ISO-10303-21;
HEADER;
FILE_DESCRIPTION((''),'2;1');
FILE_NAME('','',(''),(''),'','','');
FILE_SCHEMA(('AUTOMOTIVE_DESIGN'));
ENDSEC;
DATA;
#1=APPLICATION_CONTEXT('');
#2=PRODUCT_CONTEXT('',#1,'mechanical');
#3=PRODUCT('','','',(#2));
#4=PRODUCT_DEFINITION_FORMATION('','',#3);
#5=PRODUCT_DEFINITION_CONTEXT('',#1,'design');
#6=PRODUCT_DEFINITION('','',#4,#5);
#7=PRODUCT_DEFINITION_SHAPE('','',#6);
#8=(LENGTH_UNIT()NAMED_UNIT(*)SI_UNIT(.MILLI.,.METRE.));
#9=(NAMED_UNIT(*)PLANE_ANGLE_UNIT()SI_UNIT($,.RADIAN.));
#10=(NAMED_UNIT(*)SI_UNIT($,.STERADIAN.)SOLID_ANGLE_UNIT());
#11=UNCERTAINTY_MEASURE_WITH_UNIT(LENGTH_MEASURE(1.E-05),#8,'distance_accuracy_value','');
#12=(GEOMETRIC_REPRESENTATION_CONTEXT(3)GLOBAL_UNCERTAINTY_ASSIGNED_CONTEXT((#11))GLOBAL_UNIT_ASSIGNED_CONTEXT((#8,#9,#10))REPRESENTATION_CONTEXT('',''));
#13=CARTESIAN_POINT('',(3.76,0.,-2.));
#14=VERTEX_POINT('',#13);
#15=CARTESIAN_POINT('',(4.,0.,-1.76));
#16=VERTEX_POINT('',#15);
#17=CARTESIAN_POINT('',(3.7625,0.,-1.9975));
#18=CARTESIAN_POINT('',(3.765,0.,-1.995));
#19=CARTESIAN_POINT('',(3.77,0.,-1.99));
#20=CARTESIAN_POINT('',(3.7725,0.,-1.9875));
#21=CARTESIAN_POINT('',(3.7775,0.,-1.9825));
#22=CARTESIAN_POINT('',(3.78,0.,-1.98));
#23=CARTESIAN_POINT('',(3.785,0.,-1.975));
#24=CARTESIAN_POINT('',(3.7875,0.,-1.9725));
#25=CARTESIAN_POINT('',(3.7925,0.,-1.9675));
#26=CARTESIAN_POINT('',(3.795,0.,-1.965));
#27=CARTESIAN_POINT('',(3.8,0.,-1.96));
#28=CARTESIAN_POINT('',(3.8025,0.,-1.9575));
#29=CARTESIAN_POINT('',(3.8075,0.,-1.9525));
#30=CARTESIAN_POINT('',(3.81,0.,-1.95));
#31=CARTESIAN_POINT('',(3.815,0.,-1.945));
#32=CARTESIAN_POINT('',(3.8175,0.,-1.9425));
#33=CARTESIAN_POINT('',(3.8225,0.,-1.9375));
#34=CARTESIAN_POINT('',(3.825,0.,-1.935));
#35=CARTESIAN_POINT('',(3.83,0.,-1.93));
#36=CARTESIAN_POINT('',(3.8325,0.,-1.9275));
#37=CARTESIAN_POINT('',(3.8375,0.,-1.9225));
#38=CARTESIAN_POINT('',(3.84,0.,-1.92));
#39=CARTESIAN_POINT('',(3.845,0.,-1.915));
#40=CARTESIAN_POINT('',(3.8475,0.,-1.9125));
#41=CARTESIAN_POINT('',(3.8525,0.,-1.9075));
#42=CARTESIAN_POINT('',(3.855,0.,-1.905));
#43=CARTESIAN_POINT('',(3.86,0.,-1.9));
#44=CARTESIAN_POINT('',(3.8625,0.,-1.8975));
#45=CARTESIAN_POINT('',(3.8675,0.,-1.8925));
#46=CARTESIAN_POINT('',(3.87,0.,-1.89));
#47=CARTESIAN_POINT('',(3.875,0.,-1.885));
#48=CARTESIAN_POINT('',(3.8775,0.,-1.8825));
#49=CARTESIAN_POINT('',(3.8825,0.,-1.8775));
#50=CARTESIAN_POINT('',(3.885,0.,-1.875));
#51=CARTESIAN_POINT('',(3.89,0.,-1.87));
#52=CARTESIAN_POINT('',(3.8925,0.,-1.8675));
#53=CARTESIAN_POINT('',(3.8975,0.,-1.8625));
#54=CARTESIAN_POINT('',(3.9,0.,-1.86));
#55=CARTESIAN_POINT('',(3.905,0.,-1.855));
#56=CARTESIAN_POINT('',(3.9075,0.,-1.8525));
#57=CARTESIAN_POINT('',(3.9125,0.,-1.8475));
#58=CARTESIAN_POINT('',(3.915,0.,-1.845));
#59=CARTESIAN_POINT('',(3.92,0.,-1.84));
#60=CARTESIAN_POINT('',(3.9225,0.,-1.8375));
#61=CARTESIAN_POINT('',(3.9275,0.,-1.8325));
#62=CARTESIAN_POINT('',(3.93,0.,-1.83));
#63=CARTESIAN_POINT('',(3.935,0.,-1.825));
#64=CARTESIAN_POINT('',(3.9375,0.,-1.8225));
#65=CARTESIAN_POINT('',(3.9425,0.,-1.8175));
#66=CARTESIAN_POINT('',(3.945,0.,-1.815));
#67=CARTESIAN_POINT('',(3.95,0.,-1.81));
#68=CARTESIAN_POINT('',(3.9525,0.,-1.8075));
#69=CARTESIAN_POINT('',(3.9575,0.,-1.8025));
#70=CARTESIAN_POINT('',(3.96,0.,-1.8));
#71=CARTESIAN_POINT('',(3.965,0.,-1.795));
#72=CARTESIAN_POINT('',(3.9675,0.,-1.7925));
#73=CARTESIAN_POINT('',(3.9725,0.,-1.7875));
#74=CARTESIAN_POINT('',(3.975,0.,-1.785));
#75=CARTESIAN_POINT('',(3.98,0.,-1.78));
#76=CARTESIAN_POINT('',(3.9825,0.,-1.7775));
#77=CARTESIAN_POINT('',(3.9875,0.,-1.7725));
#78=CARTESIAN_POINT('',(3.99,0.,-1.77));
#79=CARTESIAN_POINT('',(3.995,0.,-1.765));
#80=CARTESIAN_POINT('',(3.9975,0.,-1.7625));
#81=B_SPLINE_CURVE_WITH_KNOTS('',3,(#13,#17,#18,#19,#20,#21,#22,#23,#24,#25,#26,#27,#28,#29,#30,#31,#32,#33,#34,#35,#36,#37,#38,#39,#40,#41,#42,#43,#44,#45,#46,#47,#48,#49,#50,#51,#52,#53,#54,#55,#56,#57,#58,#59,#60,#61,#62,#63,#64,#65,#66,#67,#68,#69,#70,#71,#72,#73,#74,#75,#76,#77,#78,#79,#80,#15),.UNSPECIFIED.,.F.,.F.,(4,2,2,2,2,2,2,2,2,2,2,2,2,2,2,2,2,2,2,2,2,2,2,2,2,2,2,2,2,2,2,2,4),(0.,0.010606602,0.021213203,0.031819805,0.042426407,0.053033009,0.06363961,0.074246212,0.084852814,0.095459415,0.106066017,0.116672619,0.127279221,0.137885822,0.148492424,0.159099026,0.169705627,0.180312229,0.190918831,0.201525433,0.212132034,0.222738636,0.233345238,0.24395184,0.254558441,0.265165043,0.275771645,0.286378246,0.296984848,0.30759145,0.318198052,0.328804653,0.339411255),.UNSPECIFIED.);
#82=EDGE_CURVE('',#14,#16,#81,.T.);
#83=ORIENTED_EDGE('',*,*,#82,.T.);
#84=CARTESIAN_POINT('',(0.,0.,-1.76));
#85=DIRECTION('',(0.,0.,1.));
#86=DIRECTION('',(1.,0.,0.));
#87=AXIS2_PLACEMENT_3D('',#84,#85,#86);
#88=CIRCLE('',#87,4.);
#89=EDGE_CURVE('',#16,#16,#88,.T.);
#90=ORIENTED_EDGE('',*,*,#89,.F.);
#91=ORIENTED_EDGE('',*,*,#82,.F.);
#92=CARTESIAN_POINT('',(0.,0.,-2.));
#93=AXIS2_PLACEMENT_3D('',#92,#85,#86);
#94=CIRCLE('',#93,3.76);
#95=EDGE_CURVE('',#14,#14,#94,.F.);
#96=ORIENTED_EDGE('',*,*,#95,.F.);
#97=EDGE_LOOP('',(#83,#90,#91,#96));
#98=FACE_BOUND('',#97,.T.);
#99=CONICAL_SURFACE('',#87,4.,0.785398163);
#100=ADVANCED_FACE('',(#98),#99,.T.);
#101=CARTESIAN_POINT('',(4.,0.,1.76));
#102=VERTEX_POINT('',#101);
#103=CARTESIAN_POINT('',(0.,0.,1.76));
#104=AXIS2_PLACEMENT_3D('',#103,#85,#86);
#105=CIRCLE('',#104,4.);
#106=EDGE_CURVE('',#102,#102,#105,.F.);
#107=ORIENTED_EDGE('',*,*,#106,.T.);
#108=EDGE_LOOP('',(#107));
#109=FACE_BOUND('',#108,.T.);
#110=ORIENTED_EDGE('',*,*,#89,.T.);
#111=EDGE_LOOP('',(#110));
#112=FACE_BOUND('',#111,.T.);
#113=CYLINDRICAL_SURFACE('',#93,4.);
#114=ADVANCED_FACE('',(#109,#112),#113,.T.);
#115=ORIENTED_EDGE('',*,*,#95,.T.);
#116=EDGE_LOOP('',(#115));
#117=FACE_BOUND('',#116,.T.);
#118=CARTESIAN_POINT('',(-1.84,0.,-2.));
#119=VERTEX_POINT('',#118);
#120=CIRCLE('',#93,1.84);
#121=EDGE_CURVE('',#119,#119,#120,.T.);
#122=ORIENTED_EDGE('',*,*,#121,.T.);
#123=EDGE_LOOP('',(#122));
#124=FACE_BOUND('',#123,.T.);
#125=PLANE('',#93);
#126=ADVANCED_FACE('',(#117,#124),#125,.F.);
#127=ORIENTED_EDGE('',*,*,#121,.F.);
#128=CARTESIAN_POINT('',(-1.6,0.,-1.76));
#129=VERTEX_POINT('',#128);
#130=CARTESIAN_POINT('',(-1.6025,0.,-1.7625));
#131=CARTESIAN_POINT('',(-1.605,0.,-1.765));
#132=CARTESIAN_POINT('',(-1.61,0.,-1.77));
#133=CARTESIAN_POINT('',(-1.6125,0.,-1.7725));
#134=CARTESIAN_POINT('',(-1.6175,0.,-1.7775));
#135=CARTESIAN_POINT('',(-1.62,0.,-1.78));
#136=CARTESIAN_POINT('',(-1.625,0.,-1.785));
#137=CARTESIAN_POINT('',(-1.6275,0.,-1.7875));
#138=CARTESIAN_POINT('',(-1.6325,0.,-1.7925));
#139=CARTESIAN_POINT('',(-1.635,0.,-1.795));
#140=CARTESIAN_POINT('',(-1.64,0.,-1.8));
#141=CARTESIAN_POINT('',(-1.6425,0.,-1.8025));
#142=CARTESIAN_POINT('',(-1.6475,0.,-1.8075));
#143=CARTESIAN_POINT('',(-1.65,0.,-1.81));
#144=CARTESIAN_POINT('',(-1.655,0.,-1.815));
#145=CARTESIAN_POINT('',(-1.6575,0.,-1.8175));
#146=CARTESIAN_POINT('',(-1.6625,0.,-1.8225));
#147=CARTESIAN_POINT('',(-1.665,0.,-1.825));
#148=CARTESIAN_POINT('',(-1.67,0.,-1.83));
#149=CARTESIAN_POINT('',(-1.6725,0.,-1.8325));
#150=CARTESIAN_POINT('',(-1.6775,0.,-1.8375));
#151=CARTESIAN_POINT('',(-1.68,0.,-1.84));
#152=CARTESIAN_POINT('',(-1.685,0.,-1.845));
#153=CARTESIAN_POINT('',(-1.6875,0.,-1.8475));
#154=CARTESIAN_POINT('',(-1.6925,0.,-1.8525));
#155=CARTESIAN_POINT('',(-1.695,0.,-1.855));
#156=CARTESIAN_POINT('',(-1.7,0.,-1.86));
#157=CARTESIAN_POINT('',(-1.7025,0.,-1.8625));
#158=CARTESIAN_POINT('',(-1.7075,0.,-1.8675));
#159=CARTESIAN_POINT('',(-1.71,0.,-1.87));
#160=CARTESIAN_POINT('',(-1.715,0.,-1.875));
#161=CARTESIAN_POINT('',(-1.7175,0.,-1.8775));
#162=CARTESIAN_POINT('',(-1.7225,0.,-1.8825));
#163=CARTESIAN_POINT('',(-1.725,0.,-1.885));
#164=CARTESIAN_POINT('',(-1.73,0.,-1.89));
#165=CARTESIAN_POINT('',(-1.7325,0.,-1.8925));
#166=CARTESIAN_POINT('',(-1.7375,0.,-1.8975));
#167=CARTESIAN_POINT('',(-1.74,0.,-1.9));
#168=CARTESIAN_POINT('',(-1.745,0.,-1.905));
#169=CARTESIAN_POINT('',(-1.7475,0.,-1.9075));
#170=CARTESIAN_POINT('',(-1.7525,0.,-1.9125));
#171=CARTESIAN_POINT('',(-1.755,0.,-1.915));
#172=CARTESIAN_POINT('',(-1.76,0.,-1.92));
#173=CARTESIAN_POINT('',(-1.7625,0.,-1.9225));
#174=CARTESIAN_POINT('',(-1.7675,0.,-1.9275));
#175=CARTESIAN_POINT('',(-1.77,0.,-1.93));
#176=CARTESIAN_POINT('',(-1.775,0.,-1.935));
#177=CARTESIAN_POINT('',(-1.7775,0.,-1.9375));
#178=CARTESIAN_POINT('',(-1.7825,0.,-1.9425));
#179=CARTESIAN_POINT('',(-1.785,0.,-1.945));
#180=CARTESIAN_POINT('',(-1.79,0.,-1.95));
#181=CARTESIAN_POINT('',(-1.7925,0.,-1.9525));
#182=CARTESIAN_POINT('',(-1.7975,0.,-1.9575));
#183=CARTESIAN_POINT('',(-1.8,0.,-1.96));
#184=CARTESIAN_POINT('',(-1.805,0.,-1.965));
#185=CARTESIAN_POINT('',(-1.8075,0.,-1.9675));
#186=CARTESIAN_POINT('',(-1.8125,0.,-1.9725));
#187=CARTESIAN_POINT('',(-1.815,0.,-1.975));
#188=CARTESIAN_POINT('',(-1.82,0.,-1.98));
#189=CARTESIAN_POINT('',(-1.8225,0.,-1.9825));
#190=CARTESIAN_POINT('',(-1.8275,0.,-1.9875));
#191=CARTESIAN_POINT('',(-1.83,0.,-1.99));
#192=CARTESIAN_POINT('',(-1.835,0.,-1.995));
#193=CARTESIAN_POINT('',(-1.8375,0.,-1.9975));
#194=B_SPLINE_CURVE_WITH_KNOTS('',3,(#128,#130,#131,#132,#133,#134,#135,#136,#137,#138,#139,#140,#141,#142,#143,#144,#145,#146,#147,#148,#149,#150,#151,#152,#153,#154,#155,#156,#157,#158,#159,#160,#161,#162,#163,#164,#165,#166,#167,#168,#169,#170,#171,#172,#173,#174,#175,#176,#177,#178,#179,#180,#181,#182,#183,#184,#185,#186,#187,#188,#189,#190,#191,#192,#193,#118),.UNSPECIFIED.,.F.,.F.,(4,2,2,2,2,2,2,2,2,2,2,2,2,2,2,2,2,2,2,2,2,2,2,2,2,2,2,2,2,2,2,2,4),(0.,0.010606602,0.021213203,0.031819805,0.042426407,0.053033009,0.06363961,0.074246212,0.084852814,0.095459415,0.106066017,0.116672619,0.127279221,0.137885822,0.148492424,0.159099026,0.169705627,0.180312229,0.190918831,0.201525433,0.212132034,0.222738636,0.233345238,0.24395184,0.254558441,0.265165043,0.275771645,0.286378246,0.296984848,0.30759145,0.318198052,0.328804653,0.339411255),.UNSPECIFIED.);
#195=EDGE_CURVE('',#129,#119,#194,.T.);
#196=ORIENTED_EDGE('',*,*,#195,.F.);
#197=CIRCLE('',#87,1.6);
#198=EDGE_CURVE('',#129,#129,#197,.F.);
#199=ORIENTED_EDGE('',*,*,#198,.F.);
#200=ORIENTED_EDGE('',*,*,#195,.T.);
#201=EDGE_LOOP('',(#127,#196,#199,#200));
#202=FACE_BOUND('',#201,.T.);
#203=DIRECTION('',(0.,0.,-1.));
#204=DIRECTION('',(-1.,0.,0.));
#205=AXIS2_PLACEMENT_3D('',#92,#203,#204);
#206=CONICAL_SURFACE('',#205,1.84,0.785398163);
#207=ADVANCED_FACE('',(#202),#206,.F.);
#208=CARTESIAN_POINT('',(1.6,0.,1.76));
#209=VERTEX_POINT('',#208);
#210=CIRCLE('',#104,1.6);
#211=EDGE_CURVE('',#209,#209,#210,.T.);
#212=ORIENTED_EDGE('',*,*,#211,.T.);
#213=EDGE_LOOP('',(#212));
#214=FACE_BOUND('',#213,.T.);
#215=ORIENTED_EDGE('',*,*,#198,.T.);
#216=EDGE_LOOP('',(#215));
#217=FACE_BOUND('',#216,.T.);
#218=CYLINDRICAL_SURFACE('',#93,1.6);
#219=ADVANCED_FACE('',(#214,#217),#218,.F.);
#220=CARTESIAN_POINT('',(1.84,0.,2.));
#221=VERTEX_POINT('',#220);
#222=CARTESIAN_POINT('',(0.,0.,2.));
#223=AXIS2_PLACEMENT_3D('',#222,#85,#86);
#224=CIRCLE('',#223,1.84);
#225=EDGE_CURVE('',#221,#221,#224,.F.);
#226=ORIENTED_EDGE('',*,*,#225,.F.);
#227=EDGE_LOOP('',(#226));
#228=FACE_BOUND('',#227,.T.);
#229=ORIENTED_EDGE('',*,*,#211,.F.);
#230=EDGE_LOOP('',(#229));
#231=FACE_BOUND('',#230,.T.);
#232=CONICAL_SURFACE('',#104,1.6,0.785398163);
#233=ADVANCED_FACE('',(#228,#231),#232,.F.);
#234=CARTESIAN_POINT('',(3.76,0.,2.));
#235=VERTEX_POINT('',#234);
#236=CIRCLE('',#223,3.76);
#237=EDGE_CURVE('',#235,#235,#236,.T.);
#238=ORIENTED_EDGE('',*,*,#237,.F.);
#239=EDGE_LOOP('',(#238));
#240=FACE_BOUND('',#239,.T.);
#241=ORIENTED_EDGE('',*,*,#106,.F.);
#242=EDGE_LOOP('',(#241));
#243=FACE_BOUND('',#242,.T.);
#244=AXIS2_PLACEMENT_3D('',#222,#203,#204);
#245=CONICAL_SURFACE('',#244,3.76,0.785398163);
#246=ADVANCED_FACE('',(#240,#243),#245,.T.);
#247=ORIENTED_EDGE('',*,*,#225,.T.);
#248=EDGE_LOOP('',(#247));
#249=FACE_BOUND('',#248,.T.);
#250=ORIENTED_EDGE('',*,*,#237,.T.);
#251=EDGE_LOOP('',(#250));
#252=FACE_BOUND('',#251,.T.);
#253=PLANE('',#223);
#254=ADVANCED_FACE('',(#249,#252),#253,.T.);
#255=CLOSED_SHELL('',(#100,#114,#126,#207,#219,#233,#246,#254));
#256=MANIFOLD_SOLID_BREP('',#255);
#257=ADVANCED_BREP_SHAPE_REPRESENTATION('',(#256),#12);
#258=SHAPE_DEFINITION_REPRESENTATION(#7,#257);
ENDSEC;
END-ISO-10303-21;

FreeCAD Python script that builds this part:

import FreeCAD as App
import Part
import Sketcher


def edges_at(feature, points):
    """Names of the edges that pass closest to the given points."""
    edges = feature.Shape.Edges
    near = lambda p: min(range(len(edges)), key=lambda i: edges[i].distToShape(Part.Vertex(*p))[0])
    return sorted({f"Edge{near(p) + 1}" for p in points})

doc = App.newDocument("Part")
body = doc.addObject("PartDesign::Body", "Body")

# Sketch on XY plane
sketch1 = body.newObject("Sketcher::SketchObject", "Sketch")
sketch1.AttachmentSupport = (doc.getObject("XY_Plane"), [""])
sketch1.MapMode = "FlatFace"
sketch1.addGeometry(Part.Circle(App.Vector(0, 0, 0), App.Vector(0, 0, 1), 4), False)
sketch1.addGeometry(Part.Circle(App.Vector(0, 0, 0), App.Vector(0, 0, 1), 1.6), False)
sketch1.addConstraint(Sketcher.Constraint("Coincident", 0, 3, -1, 1))
sketch1.addConstraint(Sketcher.Constraint("Coincident", 1, 3, -1, 1))
sketch1.addConstraint(Sketcher.Constraint("Diameter", 0, 8.0))
sketch1.addConstraint(Sketcher.Constraint("Diameter", 1, 3.2))
pad1 = body.newObject("PartDesign::Pad", "Pad")
pad1.Profile = sketch1
pad1.Type = "TwoLengths"
pad1.Length = 2
pad1.Length2 = 2
doc.recompute()

chamfer = body.newObject("PartDesign::Chamfer", "Chamfer")
chamfer.Base = (pad1, edges_at(pad1, [
    (-4, 0, -2),
    (-1.6, 0, -2),
    (-4, 0, 2),
    (-1.6, 0, 2),
]))
chamfer.Size = 0.24

doc.recompute()
